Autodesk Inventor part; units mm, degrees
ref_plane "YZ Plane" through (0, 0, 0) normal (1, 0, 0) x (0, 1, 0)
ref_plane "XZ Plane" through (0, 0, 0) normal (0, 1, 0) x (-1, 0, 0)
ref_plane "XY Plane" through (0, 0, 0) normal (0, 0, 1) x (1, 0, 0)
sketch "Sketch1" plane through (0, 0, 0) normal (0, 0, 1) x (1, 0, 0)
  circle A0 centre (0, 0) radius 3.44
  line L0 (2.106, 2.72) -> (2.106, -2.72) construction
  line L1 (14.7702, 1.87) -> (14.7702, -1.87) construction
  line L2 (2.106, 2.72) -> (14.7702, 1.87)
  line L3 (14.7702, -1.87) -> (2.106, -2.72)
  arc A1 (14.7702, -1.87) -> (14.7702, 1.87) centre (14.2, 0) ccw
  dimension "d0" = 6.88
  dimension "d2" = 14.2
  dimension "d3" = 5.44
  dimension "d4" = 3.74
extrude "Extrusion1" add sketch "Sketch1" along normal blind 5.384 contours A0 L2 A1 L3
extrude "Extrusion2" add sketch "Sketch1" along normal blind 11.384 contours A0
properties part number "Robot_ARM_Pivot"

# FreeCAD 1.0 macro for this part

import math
import FreeCAD as App
import Part
import Sketcher
from FreeCAD import Vector

doc = App.newDocument("Part")
body = doc.addObject("PartDesign::Body", "Body")

sketch1 = body.newObject("Sketcher::SketchObject", "Sketch")
sketch1.AttachmentSupport = (doc.getObject("XY_Plane"), [""])
sketch1.MapMode = "FlatFace"
sketch1.addGeometry([
    Part.ArcOfCircle(Part.Circle(Vector(0, 0, 0), Vector(0, 0, 1), 3.4), math.radians(-52), math.radians(52)),
    Part.LineSegment(Vector(2.1, -2.7, 0), Vector(14.8, -1.9, 0)),
    Part.ArcOfCircle(Part.Circle(Vector(14.2, 0, 0), Vector(0, 0, 1), 2), math.radians(-73), math.radians(73)),
    Part.LineSegment(Vector(14.8, 1.9, 0), Vector(2.1, 2.7, 0)),
], False)
sketch1.addConstraint([
    Sketcher.Constraint("Coincident", 0, 1, 1, 1),
    Sketcher.Constraint("Coincident", 1, 2, 2, 1),
    Sketcher.Constraint("Coincident", 2, 2, 3, 1),
    Sketcher.Constraint("Coincident", 3, 2, 0, 2),
    Sketcher.Constraint("Coincident", 0, 3, -1, 1),
    Sketcher.Constraint("Symmetric", 1, 2, 2, 2, -1),
    Sketcher.Constraint("Vertical", 0, 1, 3, 2),
    Sketcher.Constraint("Radius", 0, 3.44),
    Sketcher.Constraint("DistanceX", -1, 1, 2, 3, 14.2),
    Sketcher.Constraint("DistanceY", 1, 2, 2, 2, 3.74),
    Sketcher.Constraint("DistanceY", 0, 1, 3, 2, 5.44),
    Sketcher.Constraint("Radius", 2, 1.955),
])
pad1 = body.newObject("PartDesign::Pad", "Pad")
pad1.Profile = sketch1
pad1.Length = 5.384

sketch2 = body.newObject("Sketcher::SketchObject", "Sketch001")
sketch2.AttachmentSupport = (doc.getObject("XY_Plane"), [""])
sketch2.MapMode = "FlatFace"
sketch2.addGeometry(Part.Circle(Vector(0, 0, 0), Vector(0, 0, 1), 3.4), False)
sketch2.addConstraint([
    Sketcher.Constraint("Coincident", 0, 3, -1, 1),
    Sketcher.Constraint("Diameter", 0, 6.88),
])
pad2 = body.newObject("PartDesign::Pad", "Pad001")
pad2.Profile = sketch2
pad2.Length = 11.384

doc.recompute()
